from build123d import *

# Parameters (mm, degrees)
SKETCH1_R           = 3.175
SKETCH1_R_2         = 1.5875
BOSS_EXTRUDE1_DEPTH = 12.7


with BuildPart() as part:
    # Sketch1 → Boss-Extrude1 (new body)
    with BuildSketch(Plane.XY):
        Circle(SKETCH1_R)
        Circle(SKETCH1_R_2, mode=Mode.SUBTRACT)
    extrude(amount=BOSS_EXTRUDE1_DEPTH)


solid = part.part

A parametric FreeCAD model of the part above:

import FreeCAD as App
import Part
import Sketcher

V = App.Vector
Q = App.Units.Quantity

doc = App.newDocument("Part")
params = doc.addObject("Spreadsheet::Sheet", "Params")
for row, (alias, value) in enumerate([
    ("sketch1_diameter", "0.25 in"),
    ("sketch1_diameter2", "0.125 in"),
    ("pad1_length", "0.5 in"),
], start=1):
    params.set(f"A{row}", alias)
    params.set(f"B{row}", "=" + value)
    params.setAlias(f"B{row}", alias)

body = doc.addObject("PartDesign::Body", "Body")

# Sketch on XY plane
sketch1 = doc.addObject("Sketcher::SketchObject", "Sketch")
body.addObject(sketch1)
sketch1.AttachmentSupport = (doc.XY_Plane, [""])
sketch1.MapMode = "FlatFace"
sketch1.addGeometry([
    Part.Circle(V(0, 0, 0), V(0, 0, 1), 3.175),
    Part.Circle(V(0, 0, 0), V(0, 0, 1), 1.5875),
], False)
sketch1.addConstraint([
    Sketcher.Constraint("Coincident", 0, 3, -1, 1),
    Sketcher.Constraint("Coincident", 1, 3, -1, 1),
    Sketcher.Constraint("Diameter", 0, Q("0.25 in")),
    Sketcher.Constraint("Diameter", 1, Q("0.125 in")),
])
sketch1.setExpression("Constraints[2]", "Params.sketch1_diameter")
sketch1.setExpression("Constraints[3]", "Params.sketch1_diameter2")
pad1 = doc.addObject("PartDesign::Pad", "Pad")
body.addObject(pad1)
pad1.Profile = sketch1
pad1.setExpression("Length", "Params.pad1_length")

doc.recompute()
